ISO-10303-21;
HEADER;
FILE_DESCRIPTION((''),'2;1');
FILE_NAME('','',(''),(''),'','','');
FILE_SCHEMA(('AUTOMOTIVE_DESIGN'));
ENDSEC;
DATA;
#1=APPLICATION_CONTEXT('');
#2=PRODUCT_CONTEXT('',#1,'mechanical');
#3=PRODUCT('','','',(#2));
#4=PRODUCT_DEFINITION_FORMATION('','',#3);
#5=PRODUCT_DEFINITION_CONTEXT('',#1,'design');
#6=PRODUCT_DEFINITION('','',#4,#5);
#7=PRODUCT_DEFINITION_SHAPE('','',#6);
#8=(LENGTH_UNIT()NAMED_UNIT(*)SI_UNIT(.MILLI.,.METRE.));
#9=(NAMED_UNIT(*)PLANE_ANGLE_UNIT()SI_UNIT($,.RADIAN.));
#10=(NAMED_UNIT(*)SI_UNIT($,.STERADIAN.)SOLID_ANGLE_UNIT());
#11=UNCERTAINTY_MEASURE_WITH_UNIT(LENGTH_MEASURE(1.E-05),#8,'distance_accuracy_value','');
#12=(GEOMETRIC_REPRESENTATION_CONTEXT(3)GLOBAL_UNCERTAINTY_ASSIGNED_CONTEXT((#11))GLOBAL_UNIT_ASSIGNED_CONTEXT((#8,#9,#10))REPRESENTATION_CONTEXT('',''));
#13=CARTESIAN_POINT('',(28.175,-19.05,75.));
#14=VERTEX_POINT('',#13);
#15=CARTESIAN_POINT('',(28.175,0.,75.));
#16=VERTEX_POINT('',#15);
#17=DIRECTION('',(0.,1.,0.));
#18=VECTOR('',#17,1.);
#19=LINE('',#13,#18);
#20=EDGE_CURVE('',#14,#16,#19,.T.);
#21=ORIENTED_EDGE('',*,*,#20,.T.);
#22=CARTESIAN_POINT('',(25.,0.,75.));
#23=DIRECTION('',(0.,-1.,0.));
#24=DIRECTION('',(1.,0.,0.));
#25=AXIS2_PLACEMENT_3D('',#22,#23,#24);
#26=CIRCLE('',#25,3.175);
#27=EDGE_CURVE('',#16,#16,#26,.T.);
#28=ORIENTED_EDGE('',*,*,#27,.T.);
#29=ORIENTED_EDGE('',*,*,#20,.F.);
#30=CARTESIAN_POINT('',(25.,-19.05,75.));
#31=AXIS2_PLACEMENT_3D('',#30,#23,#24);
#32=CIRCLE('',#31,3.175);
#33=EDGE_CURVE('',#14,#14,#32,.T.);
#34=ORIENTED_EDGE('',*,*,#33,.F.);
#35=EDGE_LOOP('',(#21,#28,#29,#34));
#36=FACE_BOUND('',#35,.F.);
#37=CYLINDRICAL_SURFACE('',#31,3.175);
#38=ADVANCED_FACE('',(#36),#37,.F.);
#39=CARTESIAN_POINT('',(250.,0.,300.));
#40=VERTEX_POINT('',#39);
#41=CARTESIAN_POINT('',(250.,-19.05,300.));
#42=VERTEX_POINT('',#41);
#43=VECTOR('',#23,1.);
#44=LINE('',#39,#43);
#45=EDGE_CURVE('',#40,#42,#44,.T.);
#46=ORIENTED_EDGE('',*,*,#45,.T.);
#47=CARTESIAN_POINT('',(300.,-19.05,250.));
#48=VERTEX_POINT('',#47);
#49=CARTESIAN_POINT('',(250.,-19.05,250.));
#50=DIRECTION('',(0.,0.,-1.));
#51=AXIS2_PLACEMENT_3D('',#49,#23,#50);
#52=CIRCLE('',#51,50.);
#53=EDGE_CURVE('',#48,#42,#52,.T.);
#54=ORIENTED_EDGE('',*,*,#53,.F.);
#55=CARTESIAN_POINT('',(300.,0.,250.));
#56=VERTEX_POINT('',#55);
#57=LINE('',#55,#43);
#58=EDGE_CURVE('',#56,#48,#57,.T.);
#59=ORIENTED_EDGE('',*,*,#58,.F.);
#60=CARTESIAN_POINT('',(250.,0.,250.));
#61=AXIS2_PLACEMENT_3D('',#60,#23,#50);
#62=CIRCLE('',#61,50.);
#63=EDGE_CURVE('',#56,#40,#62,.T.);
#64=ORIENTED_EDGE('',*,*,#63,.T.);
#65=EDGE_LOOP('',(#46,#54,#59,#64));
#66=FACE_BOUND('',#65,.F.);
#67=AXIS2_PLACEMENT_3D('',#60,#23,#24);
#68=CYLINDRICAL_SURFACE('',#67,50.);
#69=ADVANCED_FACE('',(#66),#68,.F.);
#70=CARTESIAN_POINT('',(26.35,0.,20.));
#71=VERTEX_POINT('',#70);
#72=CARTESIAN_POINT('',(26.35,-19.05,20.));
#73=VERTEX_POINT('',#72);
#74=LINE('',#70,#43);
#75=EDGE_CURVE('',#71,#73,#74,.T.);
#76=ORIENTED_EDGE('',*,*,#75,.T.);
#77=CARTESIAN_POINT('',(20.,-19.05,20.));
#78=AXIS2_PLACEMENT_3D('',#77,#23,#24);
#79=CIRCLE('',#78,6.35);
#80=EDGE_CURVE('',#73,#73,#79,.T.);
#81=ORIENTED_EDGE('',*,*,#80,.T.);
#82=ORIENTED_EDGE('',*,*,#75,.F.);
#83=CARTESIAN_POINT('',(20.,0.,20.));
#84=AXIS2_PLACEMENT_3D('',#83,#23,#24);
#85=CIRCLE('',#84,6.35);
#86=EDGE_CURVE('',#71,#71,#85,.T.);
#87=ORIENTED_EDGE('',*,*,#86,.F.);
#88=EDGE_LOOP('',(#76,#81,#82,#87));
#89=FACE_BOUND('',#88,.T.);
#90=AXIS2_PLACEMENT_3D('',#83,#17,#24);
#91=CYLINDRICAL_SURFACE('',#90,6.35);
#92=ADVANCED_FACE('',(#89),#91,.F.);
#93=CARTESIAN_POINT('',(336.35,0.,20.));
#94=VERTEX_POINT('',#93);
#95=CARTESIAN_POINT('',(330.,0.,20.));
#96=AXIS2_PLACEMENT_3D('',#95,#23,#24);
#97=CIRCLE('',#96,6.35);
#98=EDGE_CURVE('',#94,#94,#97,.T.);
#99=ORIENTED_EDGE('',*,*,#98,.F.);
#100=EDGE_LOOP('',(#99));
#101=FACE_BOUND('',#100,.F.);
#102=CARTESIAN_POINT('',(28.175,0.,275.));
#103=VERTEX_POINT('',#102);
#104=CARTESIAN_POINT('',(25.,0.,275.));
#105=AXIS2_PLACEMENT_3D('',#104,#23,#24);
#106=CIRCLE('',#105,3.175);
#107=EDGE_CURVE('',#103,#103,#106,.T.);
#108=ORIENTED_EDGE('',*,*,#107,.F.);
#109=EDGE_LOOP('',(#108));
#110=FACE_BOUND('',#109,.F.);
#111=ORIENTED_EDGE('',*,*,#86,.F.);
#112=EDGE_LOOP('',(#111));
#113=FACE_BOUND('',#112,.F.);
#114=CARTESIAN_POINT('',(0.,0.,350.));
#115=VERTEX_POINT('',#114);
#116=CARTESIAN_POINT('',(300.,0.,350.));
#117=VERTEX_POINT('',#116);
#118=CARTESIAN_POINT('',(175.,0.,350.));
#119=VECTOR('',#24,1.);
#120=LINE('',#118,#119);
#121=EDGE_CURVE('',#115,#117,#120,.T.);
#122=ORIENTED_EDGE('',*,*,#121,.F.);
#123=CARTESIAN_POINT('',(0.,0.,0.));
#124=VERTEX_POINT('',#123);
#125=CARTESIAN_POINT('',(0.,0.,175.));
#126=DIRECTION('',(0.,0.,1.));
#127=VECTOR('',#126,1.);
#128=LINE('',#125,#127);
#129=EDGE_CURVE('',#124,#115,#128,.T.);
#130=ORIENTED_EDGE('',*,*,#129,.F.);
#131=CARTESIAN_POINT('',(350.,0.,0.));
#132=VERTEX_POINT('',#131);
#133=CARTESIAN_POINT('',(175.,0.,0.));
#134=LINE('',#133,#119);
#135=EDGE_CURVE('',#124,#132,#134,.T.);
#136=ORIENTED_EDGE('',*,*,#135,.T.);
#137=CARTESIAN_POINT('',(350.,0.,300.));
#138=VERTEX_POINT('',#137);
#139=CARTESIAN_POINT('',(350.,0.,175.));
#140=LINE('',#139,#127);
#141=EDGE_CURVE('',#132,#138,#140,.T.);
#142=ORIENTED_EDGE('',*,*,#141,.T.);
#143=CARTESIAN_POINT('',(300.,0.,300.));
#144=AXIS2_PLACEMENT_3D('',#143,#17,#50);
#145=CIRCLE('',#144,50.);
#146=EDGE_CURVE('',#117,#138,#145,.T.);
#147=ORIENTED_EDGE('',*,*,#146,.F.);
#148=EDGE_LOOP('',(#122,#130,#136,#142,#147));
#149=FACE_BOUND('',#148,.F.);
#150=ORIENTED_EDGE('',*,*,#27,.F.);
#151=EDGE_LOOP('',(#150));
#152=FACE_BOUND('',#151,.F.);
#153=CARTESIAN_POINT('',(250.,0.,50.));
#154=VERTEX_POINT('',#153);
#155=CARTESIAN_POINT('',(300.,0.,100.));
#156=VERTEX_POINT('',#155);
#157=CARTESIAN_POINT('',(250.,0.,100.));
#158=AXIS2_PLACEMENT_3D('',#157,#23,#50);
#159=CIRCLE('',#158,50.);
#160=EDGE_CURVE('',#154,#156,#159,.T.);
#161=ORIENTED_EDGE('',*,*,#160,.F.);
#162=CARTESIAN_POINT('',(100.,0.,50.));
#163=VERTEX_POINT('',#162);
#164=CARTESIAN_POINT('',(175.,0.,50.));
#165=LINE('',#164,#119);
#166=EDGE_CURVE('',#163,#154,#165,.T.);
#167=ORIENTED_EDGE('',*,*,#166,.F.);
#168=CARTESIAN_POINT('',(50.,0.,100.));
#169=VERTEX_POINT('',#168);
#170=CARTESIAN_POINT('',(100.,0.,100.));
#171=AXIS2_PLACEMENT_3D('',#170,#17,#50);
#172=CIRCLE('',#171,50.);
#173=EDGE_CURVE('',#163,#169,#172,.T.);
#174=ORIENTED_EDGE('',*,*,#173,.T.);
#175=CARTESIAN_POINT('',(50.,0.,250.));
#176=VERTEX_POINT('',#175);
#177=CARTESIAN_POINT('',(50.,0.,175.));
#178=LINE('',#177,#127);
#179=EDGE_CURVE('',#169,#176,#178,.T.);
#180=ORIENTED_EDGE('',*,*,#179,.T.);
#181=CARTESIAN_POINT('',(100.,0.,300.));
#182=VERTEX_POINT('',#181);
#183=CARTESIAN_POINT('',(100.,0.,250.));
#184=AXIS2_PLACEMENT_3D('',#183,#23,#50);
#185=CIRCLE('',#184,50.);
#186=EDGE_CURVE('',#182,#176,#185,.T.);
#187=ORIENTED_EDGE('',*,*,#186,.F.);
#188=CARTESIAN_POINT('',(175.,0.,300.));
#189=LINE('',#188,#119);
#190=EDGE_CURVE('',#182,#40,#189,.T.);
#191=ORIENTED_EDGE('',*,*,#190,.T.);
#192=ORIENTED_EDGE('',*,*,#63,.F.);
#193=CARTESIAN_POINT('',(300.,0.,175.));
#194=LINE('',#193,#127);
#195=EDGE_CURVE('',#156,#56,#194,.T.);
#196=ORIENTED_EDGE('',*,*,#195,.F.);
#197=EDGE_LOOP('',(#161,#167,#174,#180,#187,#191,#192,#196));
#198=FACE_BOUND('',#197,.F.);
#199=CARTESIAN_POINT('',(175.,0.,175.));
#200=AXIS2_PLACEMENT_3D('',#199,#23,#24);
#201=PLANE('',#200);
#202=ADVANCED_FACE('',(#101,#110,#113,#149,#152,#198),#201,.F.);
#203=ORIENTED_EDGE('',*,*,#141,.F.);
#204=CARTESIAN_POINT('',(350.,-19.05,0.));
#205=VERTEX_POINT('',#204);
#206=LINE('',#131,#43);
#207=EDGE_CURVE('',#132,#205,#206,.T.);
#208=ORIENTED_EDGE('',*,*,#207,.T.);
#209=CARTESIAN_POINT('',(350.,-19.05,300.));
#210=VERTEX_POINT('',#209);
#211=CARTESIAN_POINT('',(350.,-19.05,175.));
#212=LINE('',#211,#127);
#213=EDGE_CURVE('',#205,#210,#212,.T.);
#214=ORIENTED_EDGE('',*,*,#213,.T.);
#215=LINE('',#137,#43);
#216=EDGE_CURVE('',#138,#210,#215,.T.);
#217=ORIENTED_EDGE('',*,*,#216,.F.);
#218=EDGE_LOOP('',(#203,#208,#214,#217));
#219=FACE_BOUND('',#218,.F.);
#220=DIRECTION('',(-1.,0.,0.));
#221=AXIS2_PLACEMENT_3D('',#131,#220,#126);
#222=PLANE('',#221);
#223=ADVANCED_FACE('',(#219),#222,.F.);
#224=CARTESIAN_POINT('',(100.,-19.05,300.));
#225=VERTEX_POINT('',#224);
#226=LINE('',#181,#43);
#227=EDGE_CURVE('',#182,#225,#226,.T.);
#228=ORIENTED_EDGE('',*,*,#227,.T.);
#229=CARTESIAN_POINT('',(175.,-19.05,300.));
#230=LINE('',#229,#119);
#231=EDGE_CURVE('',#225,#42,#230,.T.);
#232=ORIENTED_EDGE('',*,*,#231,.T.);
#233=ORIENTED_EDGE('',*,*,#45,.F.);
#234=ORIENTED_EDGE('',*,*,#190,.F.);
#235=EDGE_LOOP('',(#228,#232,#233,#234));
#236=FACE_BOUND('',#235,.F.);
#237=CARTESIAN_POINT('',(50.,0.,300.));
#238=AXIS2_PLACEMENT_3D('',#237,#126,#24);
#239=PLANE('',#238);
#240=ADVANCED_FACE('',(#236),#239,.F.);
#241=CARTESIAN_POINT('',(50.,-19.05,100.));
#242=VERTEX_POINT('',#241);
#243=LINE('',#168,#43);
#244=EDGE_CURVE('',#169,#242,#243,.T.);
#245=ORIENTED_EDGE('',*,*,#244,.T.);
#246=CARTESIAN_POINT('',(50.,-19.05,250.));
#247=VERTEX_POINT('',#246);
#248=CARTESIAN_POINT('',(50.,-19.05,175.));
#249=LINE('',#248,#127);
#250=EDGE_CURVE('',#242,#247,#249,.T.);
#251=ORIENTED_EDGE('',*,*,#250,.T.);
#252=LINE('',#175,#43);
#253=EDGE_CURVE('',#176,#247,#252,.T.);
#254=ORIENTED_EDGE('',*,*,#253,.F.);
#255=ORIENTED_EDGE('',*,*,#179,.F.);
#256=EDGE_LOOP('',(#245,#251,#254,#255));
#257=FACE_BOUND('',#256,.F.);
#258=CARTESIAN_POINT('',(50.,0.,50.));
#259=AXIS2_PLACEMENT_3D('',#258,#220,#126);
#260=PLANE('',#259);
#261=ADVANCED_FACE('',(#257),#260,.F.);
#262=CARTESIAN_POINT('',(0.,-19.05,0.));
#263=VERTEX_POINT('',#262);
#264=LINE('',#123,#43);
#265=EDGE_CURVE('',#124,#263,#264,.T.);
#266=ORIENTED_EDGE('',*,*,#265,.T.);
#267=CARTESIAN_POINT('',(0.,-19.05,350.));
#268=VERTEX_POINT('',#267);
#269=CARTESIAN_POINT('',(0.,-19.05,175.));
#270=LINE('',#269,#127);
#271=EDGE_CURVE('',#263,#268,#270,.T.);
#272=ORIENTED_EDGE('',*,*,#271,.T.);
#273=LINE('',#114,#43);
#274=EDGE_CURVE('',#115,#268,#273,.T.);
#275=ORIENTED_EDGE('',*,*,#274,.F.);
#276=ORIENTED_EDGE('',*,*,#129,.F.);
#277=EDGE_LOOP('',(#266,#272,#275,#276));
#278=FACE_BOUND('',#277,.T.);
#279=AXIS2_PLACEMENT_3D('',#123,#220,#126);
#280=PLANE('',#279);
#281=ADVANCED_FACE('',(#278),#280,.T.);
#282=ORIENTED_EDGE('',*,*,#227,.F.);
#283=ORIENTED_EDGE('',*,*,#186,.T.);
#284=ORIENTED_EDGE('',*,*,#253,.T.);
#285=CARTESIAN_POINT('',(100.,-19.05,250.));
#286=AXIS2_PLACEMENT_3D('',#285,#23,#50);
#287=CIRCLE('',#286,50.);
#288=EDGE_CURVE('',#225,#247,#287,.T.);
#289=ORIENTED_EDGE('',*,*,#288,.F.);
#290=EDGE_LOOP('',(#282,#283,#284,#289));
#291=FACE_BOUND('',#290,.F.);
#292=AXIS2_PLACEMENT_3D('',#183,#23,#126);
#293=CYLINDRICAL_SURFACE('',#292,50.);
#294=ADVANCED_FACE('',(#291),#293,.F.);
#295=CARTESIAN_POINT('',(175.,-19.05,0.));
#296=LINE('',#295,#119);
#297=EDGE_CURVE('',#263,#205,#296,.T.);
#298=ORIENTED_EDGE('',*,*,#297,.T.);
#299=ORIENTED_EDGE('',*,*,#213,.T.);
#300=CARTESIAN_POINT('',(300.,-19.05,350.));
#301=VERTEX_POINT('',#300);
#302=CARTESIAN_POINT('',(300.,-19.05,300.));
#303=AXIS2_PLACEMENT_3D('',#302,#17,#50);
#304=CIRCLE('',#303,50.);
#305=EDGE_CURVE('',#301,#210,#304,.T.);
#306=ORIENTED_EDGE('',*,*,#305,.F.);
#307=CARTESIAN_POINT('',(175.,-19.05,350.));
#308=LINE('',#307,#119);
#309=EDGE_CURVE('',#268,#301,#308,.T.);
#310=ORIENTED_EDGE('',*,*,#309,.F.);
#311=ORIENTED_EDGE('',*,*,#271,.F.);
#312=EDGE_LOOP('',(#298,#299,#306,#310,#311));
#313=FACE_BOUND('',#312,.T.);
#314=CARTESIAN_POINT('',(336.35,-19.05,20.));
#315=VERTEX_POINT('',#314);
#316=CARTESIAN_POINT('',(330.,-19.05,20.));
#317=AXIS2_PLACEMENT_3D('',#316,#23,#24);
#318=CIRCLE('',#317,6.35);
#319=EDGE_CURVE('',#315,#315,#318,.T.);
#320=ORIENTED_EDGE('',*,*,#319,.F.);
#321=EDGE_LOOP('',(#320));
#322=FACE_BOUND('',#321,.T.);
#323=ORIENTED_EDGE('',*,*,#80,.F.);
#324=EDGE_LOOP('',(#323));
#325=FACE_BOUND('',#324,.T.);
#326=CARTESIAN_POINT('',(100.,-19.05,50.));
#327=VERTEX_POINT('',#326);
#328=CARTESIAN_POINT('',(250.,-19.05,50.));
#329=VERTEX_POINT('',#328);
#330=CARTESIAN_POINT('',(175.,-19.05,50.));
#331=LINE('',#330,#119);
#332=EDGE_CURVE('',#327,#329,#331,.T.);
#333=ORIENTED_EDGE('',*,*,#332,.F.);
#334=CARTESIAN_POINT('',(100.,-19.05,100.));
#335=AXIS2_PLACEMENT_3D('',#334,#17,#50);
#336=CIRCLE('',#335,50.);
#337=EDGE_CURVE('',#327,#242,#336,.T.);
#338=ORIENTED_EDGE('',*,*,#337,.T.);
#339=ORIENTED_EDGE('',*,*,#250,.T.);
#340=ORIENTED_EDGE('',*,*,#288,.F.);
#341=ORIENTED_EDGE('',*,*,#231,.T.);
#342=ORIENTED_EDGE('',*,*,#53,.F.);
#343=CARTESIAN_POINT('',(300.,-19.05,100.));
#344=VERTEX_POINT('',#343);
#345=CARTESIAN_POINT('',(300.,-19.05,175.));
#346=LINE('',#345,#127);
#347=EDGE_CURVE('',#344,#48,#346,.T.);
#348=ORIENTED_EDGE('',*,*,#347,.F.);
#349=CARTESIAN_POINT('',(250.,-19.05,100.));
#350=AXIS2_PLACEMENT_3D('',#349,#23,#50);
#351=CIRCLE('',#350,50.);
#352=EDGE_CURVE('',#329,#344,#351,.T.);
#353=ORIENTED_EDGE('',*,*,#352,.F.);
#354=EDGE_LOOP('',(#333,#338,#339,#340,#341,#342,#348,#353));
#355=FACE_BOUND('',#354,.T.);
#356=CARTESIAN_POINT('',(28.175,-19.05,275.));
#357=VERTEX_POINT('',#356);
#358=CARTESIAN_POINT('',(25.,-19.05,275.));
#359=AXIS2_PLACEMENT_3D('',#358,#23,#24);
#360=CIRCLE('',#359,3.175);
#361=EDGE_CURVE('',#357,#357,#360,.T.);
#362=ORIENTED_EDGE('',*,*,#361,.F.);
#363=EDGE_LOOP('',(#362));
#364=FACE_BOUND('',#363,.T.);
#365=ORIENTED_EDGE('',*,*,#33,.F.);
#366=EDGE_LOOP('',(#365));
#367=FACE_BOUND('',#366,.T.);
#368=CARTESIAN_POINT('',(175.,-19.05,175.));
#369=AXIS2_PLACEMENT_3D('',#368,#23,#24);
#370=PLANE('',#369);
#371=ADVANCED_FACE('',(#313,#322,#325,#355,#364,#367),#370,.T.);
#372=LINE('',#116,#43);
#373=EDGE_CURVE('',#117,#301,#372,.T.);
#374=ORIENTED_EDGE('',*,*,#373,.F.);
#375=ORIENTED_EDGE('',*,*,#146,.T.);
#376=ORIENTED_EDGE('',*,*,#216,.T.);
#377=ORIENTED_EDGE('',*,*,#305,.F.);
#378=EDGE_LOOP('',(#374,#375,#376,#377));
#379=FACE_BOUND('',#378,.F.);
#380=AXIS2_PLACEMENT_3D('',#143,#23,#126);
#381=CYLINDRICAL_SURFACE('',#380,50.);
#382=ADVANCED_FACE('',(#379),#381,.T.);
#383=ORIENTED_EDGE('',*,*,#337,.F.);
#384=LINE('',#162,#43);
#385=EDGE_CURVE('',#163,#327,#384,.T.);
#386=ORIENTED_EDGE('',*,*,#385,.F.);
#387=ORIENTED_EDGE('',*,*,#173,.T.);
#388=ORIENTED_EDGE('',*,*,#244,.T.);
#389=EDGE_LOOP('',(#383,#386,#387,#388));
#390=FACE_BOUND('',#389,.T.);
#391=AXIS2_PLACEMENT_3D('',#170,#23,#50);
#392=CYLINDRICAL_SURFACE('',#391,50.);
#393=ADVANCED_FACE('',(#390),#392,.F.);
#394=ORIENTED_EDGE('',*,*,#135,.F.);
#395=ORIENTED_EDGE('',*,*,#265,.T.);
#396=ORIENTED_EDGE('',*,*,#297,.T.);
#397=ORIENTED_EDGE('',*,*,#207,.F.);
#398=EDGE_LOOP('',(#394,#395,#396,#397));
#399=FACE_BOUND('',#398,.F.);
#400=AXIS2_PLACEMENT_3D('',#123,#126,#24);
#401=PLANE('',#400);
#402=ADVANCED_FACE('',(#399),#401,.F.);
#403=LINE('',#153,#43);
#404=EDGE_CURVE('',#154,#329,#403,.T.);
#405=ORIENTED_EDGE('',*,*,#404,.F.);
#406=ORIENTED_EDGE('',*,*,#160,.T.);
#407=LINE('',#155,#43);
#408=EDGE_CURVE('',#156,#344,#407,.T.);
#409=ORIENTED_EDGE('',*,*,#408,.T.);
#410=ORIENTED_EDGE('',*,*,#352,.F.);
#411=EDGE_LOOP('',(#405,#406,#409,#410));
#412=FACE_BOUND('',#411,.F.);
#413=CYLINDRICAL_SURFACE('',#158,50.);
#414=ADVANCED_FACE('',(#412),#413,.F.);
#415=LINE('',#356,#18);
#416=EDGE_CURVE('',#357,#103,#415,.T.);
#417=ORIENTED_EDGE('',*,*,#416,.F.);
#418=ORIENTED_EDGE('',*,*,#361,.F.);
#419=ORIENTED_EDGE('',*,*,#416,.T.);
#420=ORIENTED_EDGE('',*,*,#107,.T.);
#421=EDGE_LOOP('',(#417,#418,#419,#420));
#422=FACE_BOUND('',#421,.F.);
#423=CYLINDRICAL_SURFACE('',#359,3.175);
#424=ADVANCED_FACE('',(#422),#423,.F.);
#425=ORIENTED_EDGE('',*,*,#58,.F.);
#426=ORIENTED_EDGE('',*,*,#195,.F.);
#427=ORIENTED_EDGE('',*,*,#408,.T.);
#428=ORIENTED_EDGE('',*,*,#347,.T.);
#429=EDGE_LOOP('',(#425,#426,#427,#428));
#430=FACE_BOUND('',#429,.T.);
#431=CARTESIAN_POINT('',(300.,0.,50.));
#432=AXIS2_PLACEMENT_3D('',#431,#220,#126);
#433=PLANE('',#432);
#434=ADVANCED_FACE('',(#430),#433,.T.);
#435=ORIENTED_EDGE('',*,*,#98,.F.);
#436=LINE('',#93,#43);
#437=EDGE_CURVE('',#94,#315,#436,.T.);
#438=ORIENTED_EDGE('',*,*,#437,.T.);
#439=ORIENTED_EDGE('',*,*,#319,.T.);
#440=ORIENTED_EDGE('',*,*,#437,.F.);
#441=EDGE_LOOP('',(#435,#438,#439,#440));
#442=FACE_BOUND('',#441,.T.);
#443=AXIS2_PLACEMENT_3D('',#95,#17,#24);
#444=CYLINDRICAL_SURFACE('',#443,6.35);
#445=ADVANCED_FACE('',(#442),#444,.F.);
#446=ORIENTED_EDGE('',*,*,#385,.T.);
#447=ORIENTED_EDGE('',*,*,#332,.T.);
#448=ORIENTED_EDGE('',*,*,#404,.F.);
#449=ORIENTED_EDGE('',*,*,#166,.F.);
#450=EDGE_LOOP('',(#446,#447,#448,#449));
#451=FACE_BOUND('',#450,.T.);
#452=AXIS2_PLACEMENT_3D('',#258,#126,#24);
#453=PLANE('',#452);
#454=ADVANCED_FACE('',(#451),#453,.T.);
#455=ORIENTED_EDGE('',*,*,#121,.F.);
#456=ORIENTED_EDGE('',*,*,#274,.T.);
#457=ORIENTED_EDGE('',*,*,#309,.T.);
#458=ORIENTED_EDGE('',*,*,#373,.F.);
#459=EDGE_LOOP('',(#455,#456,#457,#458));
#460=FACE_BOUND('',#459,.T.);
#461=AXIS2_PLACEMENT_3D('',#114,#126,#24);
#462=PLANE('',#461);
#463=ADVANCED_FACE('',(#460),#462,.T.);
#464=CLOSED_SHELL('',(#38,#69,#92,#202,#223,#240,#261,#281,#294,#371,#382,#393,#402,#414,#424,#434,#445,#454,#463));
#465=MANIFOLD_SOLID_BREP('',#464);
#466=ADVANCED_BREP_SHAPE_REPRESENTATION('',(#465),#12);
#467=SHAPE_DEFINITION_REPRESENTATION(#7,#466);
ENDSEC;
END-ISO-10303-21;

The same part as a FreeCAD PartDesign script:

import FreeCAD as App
import Part
import Sketcher


def edges_at(feature, points):
    """Names of the edges that pass closest to the given points."""
    edges = feature.Shape.Edges
    near = lambda p: min(range(len(edges)), key=lambda i: edges[i].distToShape(Part.Vertex(*p))[0])
    return sorted({f"Edge{near(p) + 1}" for p in points})


def add_polygon(sketch, points):
    """Adds a closed chain of lines whose ends are joined by coincident constraints."""
    first, n = sketch.GeometryCount, len(points)
    for a, b in zip(points, points[1:] + points[:1]):
        sketch.addGeometry(Part.LineSegment(App.Vector(*a, 0), App.Vector(*b, 0)), False)
    for i in range(n):
        sketch.addConstraint(Sketcher.Constraint("Coincident", first + i, 2, first + (i + 1) % n, 1))

doc = App.newDocument("Part")
body = doc.addObject("PartDesign::Body", "Body")

# Sketch on XZ plane
sketch1 = body.newObject("Sketcher::SketchObject", "Sketch")
sketch1.AttachmentSupport = (doc.getObject("XZ_Plane"), [""])
sketch1.MapMode = "FlatFace"
add_polygon(sketch1, [(0, 350), (0, 0), (350, 0), (350, 350)])  # lines 0-3
sketch1.addGeometry(Part.Circle(App.Vector(20, 20, 0), App.Vector(0, 0, 1), 6.35), False)  # 4
sketch1.addGeometry(Part.Circle(App.Vector(330, 20, 0), App.Vector(0, 0, 1), 6.35), False)  # 5
add_polygon(sketch1, [(300, 50), (50, 50), (50, 300), (300, 300)])  # lines 6-9
sketch1.addConstraint([
    Sketcher.Constraint("Vertical", 0),
    Sketcher.Constraint("Horizontal", 1),
    Sketcher.Constraint("Vertical", 2),
    Sketcher.Constraint("Horizontal", 3),
    Sketcher.Constraint("Horizontal", 6),
    Sketcher.Constraint("Vertical", 7),
    Sketcher.Constraint("Horizontal", 8),
    Sketcher.Constraint("Vertical", 9),
    Sketcher.Constraint("Coincident", 0, 2, -1, 1),
    Sketcher.Constraint("Equal", 4, 5),
    Sketcher.Constraint("Horizontal", 4, 3, 5, 3),
    Sketcher.Constraint("Equal", 3, 0),
    Sketcher.Constraint("Equal", 8, 7),
    Sketcher.Constraint("Diameter", 4, 12.7),
    Sketcher.Constraint("DistanceX", 1, 1, 1, 2, 350.0),
    Sketcher.Constraint("DistanceX", 6, 2, 6, 1, 250.0),
    Sketcher.Constraint("DistanceX", -1, 1, 4, 3, 20.0),
    Sketcher.Constraint("DistanceY", -1, 1, 4, 3, 20.0),
    Sketcher.Constraint("DistanceX", -1, 1, 5, 3, 330.0),
    Sketcher.Constraint("DistanceX", -1, 1, 6, 2, 50.0),
    Sketcher.Constraint("DistanceY", -1, 1, 6, 2, 50.0),
])
pad1 = body.newObject("PartDesign::Pad", "Pad")
pad1.Profile = sketch1
pad1.Length = 19.05
doc.recompute()

fillet = body.newObject("PartDesign::Fillet", "Fillet")
fillet.Base = (pad1, edges_at(pad1, [
    (300, -9.525, 50),
    (300, -9.525, 300),
    (50, -9.525, 300),
    (50, -9.525, 50),
    (350, -9.525, 350),
]))
fillet.Radius = 50

# Sketch on XZ plane
sketch2 = body.newObject("Sketcher::SketchObject", "Sketch001")
sketch2.AttachmentSupport = (doc.getObject("XZ_Plane"), [""])
sketch2.MapMode = "FlatFace"
sketch2.AttachmentOffset = App.Placement(App.Vector(0, 0, 19.05), App.Rotation())
sketch2.addGeometry([
    Part.Circle(App.Vector(25, 275, 0), App.Vector(0, 0, 1), 3.175),
    Part.Circle(App.Vector(25, 75, 0), App.Vector(0, 0, 1), 3.175),
], False)
sketch2.addConstraint([
    Sketcher.Constraint("Equal", 0, 1),
    Sketcher.Constraint("Vertical", 0, 3, 1, 3),
    Sketcher.Constraint("Diameter", 0, 6.35),
    Sketcher.Constraint("DistanceX", -1, 1, 0, 3, 25.0),
    Sketcher.Constraint("DistanceY", -1, 1, 0, 3, 275.0),
    Sketcher.Constraint("DistanceY", -1, 1, 1, 3, 75.0),
])
pocket1 = body.newObject("PartDesign::Pocket", "Pocket")
pocket1.Profile = sketch2
pocket1.Length = 25

doc.recompute()
